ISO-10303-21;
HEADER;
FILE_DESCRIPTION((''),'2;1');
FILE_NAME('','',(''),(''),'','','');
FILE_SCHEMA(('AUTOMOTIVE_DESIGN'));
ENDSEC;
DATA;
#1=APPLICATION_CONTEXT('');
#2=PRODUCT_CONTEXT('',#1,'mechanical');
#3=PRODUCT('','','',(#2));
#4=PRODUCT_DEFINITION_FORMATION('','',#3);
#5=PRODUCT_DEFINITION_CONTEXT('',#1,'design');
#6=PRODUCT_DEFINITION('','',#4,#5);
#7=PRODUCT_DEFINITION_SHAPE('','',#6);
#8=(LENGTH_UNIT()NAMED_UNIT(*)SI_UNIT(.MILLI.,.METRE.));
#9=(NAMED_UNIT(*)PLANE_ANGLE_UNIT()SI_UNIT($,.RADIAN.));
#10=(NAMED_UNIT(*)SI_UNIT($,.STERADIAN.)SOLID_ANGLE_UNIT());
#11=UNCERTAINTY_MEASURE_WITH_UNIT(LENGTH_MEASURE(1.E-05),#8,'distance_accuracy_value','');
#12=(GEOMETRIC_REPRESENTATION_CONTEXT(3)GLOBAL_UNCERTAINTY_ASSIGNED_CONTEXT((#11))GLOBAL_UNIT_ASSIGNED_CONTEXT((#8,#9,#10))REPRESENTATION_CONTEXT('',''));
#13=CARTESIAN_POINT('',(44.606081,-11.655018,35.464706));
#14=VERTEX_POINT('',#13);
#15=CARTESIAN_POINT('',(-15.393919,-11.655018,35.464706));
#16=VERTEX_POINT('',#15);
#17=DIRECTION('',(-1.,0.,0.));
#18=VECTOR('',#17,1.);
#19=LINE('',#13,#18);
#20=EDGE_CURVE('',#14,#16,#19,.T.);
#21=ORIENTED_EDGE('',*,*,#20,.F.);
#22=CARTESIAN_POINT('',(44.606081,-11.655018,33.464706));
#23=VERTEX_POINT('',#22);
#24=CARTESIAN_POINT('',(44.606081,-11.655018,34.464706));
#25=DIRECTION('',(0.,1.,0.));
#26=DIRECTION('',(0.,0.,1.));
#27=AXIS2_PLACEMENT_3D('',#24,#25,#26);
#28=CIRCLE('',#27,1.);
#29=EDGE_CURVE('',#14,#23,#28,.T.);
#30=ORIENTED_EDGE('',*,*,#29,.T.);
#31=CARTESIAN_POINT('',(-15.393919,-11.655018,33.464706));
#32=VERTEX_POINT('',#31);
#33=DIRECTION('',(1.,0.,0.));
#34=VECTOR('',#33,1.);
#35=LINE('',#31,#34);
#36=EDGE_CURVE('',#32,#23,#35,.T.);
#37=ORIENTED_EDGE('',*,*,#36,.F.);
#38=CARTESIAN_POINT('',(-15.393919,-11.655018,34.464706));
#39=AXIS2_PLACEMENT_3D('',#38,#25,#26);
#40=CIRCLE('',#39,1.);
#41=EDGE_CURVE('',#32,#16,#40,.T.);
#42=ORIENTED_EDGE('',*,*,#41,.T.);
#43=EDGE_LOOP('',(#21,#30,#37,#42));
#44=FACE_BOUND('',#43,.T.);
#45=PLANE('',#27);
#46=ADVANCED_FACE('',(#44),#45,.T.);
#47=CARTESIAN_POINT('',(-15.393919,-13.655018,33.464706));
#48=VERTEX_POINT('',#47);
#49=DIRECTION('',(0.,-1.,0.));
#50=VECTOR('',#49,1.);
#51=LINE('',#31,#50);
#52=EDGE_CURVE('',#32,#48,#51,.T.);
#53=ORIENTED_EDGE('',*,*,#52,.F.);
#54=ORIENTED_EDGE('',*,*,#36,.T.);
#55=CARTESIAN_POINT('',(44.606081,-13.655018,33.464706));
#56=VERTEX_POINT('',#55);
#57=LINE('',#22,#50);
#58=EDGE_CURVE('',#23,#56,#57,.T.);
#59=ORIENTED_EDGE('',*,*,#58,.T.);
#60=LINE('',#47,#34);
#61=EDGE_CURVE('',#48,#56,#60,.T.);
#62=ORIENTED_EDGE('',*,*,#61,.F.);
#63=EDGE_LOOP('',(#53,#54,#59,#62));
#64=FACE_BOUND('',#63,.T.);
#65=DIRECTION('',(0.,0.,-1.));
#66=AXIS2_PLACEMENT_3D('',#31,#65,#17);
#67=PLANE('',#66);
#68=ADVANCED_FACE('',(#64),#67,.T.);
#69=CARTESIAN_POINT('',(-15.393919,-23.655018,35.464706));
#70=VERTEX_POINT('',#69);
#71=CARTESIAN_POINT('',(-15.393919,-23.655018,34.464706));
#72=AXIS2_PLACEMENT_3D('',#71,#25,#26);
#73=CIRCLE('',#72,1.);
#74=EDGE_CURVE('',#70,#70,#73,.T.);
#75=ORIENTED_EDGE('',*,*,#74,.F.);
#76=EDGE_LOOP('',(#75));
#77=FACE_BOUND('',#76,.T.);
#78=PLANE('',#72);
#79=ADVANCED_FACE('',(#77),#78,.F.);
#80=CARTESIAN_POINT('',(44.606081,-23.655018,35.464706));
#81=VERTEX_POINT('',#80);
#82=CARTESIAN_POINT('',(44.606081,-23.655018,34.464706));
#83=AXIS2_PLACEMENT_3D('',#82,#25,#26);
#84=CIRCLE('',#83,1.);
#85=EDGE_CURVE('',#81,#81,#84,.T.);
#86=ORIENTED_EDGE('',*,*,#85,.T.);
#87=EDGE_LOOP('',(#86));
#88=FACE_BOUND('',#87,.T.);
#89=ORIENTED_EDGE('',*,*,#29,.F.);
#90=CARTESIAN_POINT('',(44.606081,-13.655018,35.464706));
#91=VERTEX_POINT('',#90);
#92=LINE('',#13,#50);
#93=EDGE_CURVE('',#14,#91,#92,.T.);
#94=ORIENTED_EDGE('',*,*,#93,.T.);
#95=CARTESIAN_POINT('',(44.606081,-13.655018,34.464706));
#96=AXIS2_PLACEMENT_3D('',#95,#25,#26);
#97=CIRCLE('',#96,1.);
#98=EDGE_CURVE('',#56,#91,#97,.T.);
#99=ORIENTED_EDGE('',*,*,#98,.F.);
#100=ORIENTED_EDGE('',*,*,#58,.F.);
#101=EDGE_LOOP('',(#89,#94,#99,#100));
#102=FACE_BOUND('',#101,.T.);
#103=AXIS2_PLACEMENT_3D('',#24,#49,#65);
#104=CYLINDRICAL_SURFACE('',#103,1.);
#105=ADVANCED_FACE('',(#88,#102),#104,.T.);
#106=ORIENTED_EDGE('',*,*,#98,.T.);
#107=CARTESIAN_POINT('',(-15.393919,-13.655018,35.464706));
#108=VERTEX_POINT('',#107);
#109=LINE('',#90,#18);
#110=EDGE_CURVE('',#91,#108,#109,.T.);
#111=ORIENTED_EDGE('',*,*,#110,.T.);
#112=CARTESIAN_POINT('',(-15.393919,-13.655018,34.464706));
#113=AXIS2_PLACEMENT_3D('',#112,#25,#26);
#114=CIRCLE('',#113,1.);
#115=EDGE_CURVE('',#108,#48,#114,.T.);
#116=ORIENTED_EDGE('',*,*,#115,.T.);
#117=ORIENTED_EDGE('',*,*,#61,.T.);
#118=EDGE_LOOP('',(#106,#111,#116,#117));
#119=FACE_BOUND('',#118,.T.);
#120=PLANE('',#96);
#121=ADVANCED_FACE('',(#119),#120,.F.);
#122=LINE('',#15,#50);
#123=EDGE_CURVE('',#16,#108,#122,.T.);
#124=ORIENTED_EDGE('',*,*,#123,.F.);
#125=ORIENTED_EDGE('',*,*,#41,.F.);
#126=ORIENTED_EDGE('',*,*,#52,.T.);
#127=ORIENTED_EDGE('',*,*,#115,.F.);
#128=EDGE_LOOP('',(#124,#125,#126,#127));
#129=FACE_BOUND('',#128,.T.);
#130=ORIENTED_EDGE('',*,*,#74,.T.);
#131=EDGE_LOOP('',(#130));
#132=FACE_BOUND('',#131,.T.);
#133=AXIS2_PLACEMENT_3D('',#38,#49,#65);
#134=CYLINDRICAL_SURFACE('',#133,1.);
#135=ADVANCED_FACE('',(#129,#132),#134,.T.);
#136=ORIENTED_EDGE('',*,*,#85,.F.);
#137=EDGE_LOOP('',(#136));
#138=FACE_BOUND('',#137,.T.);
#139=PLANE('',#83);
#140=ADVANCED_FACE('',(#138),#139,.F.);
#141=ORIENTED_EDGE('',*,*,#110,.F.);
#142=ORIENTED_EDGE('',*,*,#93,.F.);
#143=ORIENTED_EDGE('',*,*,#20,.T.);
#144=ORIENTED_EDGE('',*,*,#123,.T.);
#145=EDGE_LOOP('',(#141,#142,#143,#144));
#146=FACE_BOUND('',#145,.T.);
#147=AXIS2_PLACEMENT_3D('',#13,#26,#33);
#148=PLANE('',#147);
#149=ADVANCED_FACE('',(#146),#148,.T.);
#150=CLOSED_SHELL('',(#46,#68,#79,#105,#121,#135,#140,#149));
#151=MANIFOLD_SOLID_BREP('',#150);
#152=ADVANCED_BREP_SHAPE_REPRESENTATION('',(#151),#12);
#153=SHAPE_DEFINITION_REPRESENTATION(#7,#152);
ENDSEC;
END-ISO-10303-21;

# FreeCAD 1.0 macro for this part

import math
import FreeCAD as App
import Part
import Sketcher
from FreeCAD import Vector
Q = App.Units.Quantity

doc = App.newDocument("Part")
body = doc.addObject("PartDesign::Body", "Body")

# Sketch on XZ plane
sketch1 = body.newObject("Sketcher::SketchObject", "Sketch")
sketch1.AttachmentSupport = (doc.getObject("XZ_Plane"), [""])
sketch1.MapMode = "FlatFace"
sketch1.AttachmentOffset = App.Placement(Vector(0, 0, 13.655018), App.Rotation())
sketch1.addGeometry(Part.LineSegment(Vector(44.606081, 33.464706, 0), Vector(-15.393919, 33.464706, 0)), False)
sketch1.addGeometry(Part.ArcOfCircle(Part.Circle(Vector(-15.393919, 34.464706, 0), Vector(0, 0, 1), 1), math.radians(90), math.radians(270)), False)
sketch1.addGeometry(Part.LineSegment(Vector(-15.393919, 35.464706, 0), Vector(44.606081, 35.464706, 0)), False)
sketch1.addGeometry(Part.ArcOfCircle(Part.Circle(Vector(44.606081, 34.464706, 0), Vector(0, 0, 1), 1), math.radians(-90), math.radians(90)), False)
sketch1.addConstraint(Sketcher.Constraint("Tangent", 0, 2, 1, 2))
sketch1.addConstraint(Sketcher.Constraint("Tangent", 1, 1, 2, 1))
sketch1.addConstraint(Sketcher.Constraint("Tangent", 2, 2, 3, 2))
sketch1.addConstraint(Sketcher.Constraint("Tangent", 3, 1, 0, 1))
sketch1.addConstraint(Sketcher.Constraint("Horizontal", 0))
sketch1.addConstraint(Sketcher.Constraint("Horizontal", 2))
sketch1.addConstraint(Sketcher.Constraint("Radius", 1, Q("1 mm")))
sketch1.addConstraint(Sketcher.Constraint("DistanceX", 0, 2, 0, 1, Q("60 mm")))
sketch1.addConstraint(Sketcher.Constraint("DistanceX", 1, 3, -1, 1, Q("15.393919 mm")))
sketch1.addConstraint(Sketcher.Constraint("DistanceY", -1, 1, 1, 3, Q("34.464706 mm")))
pad1 = body.newObject("PartDesign::Pad", "Pad")
pad1.Profile = sketch1
pad1.Length = 2
pad1.Reversed = True

# Sketch on XZ plane
sketch2 = body.newObject("Sketcher::SketchObject", "Sketch001")
sketch2.AttachmentSupport = (doc.getObject("XZ_Plane"), [""])
sketch2.MapMode = "FlatFace"
sketch2.AttachmentOffset = App.Placement(Vector(0, 0, 23.655018), App.Rotation())
sketch2.addGeometry(Part.Circle(Vector(-15.393919, 34.464706, 0), Vector(0, 0, 1), 1), False)
sketch2.addGeometry(Part.Circle(Vector(44.606081, 34.464706, 0), Vector(0, 0, 1), 1), False)
sketch2.addConstraint(Sketcher.Constraint("Equal", 0, 1))
sketch2.addConstraint(Sketcher.Constraint("Horizontal", 0, 3, 1, 3))
sketch2.addConstraint(Sketcher.Constraint("Diameter", 0, Q("2 mm")))
sketch2.addConstraint(Sketcher.Constraint("DistanceX", 0, 3, 1, 3, Q("60 mm")))
sketch2.addConstraint(Sketcher.Constraint("DistanceX", 0, 3, -1, 1, Q("15.393919 mm")))
sketch2.addConstraint(Sketcher.Constraint("DistanceY", -1, 1, 0, 3, Q("34.464706 mm")))
pad2 = body.newObject("PartDesign::Pad", "Pad001")
pad2.Profile = sketch2
pad2.Length = 12
pad2.Reversed = True

doc.recompute()
